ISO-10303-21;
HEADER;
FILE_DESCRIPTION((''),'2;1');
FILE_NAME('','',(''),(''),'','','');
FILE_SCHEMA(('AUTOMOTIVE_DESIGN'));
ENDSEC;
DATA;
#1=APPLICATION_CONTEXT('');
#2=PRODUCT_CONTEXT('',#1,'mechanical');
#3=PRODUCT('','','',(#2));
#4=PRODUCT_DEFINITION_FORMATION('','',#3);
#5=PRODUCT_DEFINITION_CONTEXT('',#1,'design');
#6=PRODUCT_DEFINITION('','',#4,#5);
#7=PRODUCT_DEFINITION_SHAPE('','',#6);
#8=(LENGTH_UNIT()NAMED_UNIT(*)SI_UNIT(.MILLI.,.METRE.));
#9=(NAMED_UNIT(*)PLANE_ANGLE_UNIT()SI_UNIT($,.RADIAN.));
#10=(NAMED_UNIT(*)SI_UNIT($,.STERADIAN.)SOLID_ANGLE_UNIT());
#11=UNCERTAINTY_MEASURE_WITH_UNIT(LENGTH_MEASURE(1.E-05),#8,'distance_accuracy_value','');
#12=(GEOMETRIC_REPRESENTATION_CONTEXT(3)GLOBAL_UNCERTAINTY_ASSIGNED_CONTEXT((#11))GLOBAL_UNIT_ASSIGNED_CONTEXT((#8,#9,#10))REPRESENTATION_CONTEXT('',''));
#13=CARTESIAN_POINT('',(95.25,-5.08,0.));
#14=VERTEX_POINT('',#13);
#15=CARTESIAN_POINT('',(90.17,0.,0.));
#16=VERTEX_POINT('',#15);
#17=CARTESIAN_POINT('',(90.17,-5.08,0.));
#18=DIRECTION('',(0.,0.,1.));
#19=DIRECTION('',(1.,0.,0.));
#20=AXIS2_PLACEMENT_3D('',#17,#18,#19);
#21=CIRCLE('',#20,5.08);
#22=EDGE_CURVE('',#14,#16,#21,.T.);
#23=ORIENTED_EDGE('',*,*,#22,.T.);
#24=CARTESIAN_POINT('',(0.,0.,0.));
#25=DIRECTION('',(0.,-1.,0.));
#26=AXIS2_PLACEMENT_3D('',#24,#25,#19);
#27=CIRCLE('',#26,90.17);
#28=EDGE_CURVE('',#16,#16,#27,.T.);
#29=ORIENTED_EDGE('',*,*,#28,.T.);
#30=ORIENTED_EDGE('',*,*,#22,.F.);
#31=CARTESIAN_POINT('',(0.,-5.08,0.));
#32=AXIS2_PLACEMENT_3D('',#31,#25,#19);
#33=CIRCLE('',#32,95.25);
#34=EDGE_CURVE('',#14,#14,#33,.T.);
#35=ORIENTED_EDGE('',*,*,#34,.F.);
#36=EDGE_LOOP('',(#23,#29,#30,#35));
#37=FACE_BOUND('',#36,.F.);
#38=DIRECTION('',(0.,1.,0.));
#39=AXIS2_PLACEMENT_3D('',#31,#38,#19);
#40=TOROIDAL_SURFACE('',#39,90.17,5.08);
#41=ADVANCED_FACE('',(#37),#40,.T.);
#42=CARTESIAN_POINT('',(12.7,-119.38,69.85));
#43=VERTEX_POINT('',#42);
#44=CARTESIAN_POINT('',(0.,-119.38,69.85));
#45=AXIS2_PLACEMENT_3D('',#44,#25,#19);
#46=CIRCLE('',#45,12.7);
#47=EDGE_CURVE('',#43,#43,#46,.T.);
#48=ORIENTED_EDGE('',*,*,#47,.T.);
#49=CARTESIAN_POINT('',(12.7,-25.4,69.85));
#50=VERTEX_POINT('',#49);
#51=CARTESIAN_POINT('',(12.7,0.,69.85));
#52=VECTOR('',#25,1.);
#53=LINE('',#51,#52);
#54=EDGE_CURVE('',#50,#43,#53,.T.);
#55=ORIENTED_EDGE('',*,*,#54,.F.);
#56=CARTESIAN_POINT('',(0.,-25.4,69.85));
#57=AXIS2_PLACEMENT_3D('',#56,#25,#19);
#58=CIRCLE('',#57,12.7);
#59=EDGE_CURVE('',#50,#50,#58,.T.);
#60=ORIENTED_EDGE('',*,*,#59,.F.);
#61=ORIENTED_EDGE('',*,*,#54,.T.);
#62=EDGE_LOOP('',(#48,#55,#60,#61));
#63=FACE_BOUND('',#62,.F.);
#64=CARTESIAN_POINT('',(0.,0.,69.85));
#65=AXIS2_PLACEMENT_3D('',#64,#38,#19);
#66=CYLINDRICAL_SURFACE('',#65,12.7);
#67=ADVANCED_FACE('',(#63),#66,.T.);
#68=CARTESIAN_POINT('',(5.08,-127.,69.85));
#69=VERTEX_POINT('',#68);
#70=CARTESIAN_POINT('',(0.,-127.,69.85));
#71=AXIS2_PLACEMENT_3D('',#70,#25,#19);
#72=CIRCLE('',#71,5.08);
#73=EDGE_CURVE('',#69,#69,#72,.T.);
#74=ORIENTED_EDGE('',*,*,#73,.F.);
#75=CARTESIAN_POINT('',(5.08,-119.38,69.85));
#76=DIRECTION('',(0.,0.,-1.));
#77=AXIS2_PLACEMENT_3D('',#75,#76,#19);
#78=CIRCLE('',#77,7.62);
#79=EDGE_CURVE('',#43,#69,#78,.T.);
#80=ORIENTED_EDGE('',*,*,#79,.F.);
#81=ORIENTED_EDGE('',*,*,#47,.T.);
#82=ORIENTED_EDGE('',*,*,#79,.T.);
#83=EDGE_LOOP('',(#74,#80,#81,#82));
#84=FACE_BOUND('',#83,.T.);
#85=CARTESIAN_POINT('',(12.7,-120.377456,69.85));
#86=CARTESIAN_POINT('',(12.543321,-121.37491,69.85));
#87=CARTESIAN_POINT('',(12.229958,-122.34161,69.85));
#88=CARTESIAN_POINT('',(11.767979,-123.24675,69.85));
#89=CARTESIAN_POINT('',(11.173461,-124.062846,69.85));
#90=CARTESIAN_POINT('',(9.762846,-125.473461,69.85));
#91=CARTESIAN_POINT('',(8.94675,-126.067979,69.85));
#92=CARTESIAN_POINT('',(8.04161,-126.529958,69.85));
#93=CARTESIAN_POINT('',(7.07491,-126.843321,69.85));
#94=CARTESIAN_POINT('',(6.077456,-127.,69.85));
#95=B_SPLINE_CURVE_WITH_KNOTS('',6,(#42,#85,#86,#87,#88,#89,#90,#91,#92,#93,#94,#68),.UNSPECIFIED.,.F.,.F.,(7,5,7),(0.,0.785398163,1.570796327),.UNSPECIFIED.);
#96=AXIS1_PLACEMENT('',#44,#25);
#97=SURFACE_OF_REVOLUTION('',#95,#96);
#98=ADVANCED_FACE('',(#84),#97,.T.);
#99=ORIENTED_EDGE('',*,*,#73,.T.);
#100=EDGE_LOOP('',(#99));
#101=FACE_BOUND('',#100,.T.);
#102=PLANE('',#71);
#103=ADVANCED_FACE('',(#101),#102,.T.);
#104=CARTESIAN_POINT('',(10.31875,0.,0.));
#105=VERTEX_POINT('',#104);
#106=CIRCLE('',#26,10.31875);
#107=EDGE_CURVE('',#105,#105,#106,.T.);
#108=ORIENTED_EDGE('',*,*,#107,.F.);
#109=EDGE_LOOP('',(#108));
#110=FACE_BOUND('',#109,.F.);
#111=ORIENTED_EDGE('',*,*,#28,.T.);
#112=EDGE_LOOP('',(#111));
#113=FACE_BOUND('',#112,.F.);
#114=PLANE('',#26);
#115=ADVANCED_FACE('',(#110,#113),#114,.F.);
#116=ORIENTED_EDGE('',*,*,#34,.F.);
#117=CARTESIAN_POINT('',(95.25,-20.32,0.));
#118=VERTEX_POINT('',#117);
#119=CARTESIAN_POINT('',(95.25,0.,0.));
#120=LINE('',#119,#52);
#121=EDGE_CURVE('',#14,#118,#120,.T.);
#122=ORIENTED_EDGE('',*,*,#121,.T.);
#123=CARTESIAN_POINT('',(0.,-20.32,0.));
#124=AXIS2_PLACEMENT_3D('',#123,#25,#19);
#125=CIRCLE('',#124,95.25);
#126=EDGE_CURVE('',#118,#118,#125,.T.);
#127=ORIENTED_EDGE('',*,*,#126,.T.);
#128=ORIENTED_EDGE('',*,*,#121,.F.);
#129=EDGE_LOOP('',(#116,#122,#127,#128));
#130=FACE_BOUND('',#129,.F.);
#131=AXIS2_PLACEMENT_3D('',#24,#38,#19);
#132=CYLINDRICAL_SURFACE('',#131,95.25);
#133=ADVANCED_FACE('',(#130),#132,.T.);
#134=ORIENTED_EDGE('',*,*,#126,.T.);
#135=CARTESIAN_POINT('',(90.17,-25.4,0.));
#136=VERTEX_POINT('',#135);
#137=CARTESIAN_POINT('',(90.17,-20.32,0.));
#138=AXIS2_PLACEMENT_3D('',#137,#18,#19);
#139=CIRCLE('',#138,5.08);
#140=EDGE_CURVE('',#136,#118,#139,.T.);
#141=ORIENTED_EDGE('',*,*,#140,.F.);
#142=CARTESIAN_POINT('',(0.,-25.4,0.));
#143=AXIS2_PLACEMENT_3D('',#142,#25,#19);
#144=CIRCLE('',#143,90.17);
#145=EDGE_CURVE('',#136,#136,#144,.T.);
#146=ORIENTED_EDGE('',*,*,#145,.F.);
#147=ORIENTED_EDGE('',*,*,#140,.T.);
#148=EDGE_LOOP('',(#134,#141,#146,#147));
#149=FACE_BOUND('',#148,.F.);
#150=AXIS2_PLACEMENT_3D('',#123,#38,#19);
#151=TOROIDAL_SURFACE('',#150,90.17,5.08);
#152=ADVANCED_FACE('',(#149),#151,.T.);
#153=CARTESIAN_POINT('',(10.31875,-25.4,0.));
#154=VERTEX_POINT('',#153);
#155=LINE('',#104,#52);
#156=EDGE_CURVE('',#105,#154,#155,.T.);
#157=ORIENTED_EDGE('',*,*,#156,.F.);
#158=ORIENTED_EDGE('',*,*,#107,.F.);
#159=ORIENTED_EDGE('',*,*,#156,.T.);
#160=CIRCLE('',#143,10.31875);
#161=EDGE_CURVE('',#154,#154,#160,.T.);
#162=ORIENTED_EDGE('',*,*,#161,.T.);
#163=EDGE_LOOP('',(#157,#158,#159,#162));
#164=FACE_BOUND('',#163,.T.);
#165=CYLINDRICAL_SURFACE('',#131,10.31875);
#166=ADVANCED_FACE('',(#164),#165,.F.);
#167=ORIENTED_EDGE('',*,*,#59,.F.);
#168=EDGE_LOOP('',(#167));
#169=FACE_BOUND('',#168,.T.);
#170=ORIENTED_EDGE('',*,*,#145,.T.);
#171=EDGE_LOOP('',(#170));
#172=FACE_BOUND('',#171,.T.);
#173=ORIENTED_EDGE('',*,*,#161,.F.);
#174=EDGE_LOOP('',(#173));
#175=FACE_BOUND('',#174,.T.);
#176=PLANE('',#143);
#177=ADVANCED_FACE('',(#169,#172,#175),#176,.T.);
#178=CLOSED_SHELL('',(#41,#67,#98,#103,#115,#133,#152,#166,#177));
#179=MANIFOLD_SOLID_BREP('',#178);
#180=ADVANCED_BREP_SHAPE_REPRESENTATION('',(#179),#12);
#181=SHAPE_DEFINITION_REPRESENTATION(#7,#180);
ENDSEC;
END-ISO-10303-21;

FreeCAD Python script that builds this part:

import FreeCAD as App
import Part
import Sketcher
Q = App.Units.Quantity


def edges_at(feature, points):
    """Names of the edges that pass closest to the given points."""
    edges = feature.Shape.Edges
    near = lambda p: min(range(len(edges)), key=lambda i: edges[i].distToShape(Part.Vertex(*p))[0])
    return sorted({f"Edge{near(p) + 1}" for p in points})

doc = App.newDocument("Part")
params = doc.addObject("Spreadsheet::Sheet", "Params")
for row, (alias, value) in enumerate([
    ("sketch1_diameter", "1 in"),
    ("sketch1_diameter2", "7.5 in"),
    ("sketch1_diameter3", "0.8125 in"),
    ("pad1_length", "1 in"),
    ("sketch2_diameter", "1 in"),
    ("pad2_length", "5 in"),
    ("fillet_radius", "0.2 in"),
    ("fillet2_radius", "0.3 in"),
], start=1):
    params.set(f"A{row}", alias)
    params.set(f"B{row}", "=" + value)
    params.setAlias(f"B{row}", alias)

body = doc.addObject("PartDesign::Body", "Body")

sketch1 = body.newObject("Sketcher::SketchObject", "Sketch")
sketch1.AttachmentSupport = (doc.getObject("XZ_Plane"), [""])
sketch1.MapMode = "FlatFace"
sketch1.addGeometry(Part.Circle(App.Vector(0, 0, 0), App.Vector(0, 0, 1), 95), False)
sketch1.addGeometry(Part.Circle(App.Vector(0, 0, 0), App.Vector(0, 0, 1), 10), False)
sketch1.addGeometry(Part.Circle(App.Vector(0, 70, 0), App.Vector(0, 0, 1), 13), False)
sketch1.addConstraint(Sketcher.Constraint("Coincident", 0, 3, -1, 1))
sketch1.addConstraint(Sketcher.Constraint("Coincident", 1, 3, -1, 1))
sketch1.addConstraint(Sketcher.Constraint("PointOnObject", 2, 3, -2))
sketch1.addConstraint(Sketcher.Constraint("Diameter", 2, Q("1 in")))
sketch1.addConstraint(Sketcher.Constraint("Diameter", 0, Q("7.5 in")))
sketch1.addConstraint(Sketcher.Constraint("Diameter", 1, Q("0.8125 in")))
sketch1.addConstraint(Sketcher.Constraint("DistanceY", -1, 1, 2, 3, Q("2.75 in")))
sketch1.setExpression("Constraints[3]", "Params.sketch1_diameter")
sketch1.setExpression("Constraints[4]", "Params.sketch1_diameter2")
sketch1.setExpression("Constraints[5]", "Params.sketch1_diameter3")
pad1 = body.newObject("PartDesign::Pad", "Pad")
pad1.Profile = sketch1
pad1.setExpression("Length", "Params.pad1_length")

sketch2 = body.newObject("Sketcher::SketchObject", "Sketch001")
sketch2.AttachmentSupport = (doc.getObject("XZ_Plane"), [""])
sketch2.MapMode = "FlatFace"
sketch2.addGeometry(Part.Circle(App.Vector(0, 70, 0), App.Vector(0, 0, 1), 13), False)
sketch2.addConstraint(Sketcher.Constraint("PointOnObject", 0, 3, -2))
sketch2.addConstraint(Sketcher.Constraint("Diameter", 0, Q("1 in")))
sketch2.addConstraint(Sketcher.Constraint("DistanceY", -1, 1, 0, 3, Q("2.75 in")))
sketch2.setExpression("Constraints[1]", "Params.sketch2_diameter")
pad2 = body.newObject("PartDesign::Pad", "Pad001")
pad2.Profile = sketch2
pad2.setExpression("Length", "Params.pad2_length")
doc.recompute()

fillet = body.newObject("PartDesign::Fillet", "Fillet")
fillet.Base = (pad2, edges_at(pad2, [(-95.25, -25.4, 0), (-95.25, 0, 0)]))
fillet.setExpression("Radius", "Params.fillet_radius")
doc.recompute()

fillet2 = body.newObject("PartDesign::Fillet", "Fillet001")
fillet2.Base = (fillet, edges_at(fillet, [(-12.7, -127, 69.85)]))
fillet2.setExpression("Radius", "Params.fillet2_radius")

doc.recompute()
